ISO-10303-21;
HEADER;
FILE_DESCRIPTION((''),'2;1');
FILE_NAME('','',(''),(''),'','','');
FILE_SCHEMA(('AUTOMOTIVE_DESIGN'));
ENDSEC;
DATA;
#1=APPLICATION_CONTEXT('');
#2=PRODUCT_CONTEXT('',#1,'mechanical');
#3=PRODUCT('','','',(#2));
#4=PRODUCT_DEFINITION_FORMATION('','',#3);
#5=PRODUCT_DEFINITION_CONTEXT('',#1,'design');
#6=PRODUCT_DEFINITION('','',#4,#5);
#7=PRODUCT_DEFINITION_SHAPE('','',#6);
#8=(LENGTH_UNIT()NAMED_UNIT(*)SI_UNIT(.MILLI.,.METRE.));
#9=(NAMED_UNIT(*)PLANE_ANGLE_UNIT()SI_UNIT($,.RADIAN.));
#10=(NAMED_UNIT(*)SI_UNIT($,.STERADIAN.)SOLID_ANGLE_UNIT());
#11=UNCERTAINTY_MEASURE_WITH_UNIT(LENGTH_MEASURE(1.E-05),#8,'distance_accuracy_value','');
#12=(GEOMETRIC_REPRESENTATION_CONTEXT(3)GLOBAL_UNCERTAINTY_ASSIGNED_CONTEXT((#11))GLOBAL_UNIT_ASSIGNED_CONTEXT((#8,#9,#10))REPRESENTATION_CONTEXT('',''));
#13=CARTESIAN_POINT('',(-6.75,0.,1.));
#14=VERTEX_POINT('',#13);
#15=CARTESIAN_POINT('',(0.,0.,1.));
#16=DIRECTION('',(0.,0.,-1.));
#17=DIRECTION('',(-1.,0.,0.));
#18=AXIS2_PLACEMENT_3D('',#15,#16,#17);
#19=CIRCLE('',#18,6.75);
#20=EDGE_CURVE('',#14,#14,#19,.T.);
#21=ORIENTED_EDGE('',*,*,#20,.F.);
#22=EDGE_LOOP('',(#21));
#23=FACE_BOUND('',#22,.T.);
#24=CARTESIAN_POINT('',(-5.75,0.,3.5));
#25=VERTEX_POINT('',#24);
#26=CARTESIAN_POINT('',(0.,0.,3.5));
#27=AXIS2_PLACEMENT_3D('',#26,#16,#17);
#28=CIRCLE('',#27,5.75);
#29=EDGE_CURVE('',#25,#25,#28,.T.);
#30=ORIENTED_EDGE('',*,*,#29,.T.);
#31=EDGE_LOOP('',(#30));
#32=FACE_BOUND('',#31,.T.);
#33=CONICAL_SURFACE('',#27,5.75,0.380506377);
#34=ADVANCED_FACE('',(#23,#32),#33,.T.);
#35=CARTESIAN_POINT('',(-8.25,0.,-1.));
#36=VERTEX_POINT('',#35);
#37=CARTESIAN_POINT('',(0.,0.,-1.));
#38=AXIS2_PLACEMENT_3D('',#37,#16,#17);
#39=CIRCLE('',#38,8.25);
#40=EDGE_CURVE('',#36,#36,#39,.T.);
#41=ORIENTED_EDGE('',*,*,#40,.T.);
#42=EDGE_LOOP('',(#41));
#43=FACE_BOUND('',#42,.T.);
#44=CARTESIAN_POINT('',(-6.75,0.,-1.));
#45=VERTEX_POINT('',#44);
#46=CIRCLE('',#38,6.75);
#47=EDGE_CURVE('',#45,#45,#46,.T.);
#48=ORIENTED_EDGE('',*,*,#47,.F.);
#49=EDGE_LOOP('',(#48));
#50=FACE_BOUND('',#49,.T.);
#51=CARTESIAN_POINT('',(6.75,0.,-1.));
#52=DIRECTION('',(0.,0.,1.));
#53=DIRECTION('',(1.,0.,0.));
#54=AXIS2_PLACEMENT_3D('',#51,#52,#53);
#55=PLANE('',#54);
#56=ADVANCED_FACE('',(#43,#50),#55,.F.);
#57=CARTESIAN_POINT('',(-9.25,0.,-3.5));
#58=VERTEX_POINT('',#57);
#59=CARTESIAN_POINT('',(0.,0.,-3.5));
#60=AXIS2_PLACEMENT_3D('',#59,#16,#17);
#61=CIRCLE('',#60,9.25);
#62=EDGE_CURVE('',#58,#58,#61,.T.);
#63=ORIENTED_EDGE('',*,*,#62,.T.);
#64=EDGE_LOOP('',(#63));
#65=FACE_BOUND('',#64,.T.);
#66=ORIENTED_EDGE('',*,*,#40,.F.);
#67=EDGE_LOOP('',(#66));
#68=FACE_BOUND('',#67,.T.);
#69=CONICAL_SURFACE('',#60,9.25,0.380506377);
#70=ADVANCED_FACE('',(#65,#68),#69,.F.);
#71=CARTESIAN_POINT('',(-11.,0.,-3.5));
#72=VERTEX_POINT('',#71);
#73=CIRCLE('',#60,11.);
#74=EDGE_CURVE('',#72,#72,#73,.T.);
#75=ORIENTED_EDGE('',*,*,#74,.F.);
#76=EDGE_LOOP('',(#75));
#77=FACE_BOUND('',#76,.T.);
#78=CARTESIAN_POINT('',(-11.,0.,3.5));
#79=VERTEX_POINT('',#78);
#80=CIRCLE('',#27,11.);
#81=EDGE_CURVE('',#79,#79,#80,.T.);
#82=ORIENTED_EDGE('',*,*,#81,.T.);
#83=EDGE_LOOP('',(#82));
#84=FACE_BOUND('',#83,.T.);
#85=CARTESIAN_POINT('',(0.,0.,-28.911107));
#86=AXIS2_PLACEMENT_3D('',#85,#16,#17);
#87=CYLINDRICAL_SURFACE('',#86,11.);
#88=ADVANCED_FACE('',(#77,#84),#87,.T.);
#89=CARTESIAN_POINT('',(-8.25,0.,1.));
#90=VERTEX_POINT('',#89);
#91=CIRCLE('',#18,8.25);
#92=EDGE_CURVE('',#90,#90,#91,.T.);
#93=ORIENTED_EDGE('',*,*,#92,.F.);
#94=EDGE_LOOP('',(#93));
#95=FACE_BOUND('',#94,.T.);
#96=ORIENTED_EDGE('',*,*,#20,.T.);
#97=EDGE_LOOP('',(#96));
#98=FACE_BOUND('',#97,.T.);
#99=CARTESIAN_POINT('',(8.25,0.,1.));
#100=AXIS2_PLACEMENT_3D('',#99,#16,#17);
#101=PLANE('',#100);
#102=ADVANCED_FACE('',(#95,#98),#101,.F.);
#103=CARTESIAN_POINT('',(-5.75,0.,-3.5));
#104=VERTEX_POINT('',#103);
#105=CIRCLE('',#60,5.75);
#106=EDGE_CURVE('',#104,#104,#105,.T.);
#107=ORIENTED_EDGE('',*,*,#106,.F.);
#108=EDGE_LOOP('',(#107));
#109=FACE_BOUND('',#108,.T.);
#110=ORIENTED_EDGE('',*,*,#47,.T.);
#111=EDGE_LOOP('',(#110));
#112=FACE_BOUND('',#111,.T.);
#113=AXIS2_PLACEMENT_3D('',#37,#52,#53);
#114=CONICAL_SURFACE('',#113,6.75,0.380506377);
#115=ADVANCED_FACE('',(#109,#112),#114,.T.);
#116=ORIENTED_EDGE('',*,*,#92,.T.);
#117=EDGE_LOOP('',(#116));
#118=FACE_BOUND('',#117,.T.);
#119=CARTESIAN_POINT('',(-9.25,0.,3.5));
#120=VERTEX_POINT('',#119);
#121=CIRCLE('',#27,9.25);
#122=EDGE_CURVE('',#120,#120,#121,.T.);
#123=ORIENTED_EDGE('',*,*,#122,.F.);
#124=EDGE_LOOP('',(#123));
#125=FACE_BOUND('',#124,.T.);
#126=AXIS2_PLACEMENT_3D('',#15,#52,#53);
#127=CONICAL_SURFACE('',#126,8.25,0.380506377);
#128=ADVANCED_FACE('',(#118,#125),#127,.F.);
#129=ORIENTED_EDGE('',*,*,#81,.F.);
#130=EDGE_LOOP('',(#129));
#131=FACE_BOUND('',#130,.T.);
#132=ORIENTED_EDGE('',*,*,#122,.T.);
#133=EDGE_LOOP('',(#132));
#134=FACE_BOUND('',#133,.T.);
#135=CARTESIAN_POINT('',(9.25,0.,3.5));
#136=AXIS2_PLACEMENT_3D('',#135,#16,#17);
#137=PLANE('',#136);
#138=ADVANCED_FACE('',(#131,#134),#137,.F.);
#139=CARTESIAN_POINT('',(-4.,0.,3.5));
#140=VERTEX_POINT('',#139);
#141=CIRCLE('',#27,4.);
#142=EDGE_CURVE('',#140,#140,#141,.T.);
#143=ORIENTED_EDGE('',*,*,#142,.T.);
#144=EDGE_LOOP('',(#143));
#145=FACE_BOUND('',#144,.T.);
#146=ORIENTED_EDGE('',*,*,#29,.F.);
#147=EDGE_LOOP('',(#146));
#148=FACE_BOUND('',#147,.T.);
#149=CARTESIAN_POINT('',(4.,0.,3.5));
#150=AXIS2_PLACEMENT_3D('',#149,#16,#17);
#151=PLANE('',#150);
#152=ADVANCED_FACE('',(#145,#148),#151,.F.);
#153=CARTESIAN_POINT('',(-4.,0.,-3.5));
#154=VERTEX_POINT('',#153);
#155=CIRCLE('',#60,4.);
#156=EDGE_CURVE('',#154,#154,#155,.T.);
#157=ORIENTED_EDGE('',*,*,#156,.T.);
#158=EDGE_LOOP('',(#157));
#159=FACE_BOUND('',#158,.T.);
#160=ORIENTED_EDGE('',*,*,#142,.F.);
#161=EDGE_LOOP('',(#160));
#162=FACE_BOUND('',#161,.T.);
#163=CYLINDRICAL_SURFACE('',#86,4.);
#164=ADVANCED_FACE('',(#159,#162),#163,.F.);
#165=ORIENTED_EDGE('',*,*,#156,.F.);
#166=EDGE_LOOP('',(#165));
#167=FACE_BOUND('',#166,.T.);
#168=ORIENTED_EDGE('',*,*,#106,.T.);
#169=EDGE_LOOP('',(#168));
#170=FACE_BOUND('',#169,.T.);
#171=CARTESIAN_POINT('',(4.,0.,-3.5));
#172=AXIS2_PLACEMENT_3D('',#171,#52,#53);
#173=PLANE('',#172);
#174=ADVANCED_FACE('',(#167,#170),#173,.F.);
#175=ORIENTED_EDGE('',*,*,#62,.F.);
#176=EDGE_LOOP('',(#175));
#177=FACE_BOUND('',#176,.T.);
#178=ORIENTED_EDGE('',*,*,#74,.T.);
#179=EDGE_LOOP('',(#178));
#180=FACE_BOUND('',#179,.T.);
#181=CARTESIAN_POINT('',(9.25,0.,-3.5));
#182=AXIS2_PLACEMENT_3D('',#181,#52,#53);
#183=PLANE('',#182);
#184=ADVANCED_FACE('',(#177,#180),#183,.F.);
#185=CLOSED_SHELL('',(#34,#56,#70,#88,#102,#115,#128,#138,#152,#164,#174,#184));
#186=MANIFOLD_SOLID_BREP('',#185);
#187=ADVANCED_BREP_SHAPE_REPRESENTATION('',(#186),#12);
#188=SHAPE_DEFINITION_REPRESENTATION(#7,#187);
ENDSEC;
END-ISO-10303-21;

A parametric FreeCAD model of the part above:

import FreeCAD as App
import Part
import Sketcher


def add_polygon(sketch, points):
    """Adds a closed chain of lines whose ends are joined by coincident constraints."""
    first, n = sketch.GeometryCount, len(points)
    for a, b in zip(points, points[1:] + points[:1]):
        sketch.addGeometry(Part.LineSegment(App.Vector(*a, 0), App.Vector(*b, 0)), False)
    for i in range(n):
        sketch.addConstraint(Sketcher.Constraint("Coincident", first + i, 2, first + (i + 1) % n, 1))

doc = App.newDocument("Part")
body = doc.addObject("PartDesign::Body", "Body")

sketch1 = body.newObject("Sketcher::SketchObject", "Sketch")
sketch1.AttachmentSupport = (doc.getObject("XZ_Plane"), [""])
sketch1.MapMode = "FlatFace"
add_polygon(sketch1, [(6.75, -1), (5.75, -3.5), (4, -3.5), (4, 3.5), (5.75, 3.5), (6.75, 1), (8.25, 1), (9.25, 3.5), (11, 3.5), (11, -3.5), (9.25, -3.5), (8.25, -1)])
sketch1.addConstraint([
    Sketcher.Constraint("Horizontal", 1),
    Sketcher.Constraint("Vertical", 2),
    Sketcher.Constraint("Horizontal", 3),
    Sketcher.Constraint("Horizontal", 5),
    Sketcher.Constraint("Horizontal", 7),
    Sketcher.Constraint("Vertical", 8),
    Sketcher.Constraint("Horizontal", 9),
    Sketcher.Constraint("Horizontal", 11),
    Sketcher.Constraint("Symmetric", 0, 2, 3, 2, -1),
    Sketcher.Constraint("Symmetric", 6, 2, 9, 2, -1),
    Sketcher.Constraint("Symmetric", 5, 2, 10, 2, -1),
    Sketcher.Constraint("Parallel", 0, 6),
    Sketcher.Constraint("Parallel", 4, 10),
    Sketcher.Constraint("Horizontal", 3, 2, 6, 2),
    Sketcher.Constraint("Equal", 3, 7),
    Sketcher.Constraint("DistanceY", 2, 1, 2, 2, 7.0),
    Sketcher.Constraint("DistanceX", 5, 1, 5, 2, 1.5),
    Sketcher.Constraint("DistanceX", -1, 1, 1, 2, 4.0),
    Sketcher.Constraint("DistanceY", -1, 1, 4, 2, 1.0),
    Sketcher.Constraint("DistanceX", -1, 1, 7, 2, 11.0),
    Sketcher.Constraint("DistanceX", 3, 2, 4, 2, 1.0),
])
revolution = body.newObject("PartDesign::Revolution", "Revolution")
revolution.Profile = sketch1
revolution.ReferenceAxis = (sketch1, ["V_Axis"])
revolution.Angle = 360

doc.recompute()
